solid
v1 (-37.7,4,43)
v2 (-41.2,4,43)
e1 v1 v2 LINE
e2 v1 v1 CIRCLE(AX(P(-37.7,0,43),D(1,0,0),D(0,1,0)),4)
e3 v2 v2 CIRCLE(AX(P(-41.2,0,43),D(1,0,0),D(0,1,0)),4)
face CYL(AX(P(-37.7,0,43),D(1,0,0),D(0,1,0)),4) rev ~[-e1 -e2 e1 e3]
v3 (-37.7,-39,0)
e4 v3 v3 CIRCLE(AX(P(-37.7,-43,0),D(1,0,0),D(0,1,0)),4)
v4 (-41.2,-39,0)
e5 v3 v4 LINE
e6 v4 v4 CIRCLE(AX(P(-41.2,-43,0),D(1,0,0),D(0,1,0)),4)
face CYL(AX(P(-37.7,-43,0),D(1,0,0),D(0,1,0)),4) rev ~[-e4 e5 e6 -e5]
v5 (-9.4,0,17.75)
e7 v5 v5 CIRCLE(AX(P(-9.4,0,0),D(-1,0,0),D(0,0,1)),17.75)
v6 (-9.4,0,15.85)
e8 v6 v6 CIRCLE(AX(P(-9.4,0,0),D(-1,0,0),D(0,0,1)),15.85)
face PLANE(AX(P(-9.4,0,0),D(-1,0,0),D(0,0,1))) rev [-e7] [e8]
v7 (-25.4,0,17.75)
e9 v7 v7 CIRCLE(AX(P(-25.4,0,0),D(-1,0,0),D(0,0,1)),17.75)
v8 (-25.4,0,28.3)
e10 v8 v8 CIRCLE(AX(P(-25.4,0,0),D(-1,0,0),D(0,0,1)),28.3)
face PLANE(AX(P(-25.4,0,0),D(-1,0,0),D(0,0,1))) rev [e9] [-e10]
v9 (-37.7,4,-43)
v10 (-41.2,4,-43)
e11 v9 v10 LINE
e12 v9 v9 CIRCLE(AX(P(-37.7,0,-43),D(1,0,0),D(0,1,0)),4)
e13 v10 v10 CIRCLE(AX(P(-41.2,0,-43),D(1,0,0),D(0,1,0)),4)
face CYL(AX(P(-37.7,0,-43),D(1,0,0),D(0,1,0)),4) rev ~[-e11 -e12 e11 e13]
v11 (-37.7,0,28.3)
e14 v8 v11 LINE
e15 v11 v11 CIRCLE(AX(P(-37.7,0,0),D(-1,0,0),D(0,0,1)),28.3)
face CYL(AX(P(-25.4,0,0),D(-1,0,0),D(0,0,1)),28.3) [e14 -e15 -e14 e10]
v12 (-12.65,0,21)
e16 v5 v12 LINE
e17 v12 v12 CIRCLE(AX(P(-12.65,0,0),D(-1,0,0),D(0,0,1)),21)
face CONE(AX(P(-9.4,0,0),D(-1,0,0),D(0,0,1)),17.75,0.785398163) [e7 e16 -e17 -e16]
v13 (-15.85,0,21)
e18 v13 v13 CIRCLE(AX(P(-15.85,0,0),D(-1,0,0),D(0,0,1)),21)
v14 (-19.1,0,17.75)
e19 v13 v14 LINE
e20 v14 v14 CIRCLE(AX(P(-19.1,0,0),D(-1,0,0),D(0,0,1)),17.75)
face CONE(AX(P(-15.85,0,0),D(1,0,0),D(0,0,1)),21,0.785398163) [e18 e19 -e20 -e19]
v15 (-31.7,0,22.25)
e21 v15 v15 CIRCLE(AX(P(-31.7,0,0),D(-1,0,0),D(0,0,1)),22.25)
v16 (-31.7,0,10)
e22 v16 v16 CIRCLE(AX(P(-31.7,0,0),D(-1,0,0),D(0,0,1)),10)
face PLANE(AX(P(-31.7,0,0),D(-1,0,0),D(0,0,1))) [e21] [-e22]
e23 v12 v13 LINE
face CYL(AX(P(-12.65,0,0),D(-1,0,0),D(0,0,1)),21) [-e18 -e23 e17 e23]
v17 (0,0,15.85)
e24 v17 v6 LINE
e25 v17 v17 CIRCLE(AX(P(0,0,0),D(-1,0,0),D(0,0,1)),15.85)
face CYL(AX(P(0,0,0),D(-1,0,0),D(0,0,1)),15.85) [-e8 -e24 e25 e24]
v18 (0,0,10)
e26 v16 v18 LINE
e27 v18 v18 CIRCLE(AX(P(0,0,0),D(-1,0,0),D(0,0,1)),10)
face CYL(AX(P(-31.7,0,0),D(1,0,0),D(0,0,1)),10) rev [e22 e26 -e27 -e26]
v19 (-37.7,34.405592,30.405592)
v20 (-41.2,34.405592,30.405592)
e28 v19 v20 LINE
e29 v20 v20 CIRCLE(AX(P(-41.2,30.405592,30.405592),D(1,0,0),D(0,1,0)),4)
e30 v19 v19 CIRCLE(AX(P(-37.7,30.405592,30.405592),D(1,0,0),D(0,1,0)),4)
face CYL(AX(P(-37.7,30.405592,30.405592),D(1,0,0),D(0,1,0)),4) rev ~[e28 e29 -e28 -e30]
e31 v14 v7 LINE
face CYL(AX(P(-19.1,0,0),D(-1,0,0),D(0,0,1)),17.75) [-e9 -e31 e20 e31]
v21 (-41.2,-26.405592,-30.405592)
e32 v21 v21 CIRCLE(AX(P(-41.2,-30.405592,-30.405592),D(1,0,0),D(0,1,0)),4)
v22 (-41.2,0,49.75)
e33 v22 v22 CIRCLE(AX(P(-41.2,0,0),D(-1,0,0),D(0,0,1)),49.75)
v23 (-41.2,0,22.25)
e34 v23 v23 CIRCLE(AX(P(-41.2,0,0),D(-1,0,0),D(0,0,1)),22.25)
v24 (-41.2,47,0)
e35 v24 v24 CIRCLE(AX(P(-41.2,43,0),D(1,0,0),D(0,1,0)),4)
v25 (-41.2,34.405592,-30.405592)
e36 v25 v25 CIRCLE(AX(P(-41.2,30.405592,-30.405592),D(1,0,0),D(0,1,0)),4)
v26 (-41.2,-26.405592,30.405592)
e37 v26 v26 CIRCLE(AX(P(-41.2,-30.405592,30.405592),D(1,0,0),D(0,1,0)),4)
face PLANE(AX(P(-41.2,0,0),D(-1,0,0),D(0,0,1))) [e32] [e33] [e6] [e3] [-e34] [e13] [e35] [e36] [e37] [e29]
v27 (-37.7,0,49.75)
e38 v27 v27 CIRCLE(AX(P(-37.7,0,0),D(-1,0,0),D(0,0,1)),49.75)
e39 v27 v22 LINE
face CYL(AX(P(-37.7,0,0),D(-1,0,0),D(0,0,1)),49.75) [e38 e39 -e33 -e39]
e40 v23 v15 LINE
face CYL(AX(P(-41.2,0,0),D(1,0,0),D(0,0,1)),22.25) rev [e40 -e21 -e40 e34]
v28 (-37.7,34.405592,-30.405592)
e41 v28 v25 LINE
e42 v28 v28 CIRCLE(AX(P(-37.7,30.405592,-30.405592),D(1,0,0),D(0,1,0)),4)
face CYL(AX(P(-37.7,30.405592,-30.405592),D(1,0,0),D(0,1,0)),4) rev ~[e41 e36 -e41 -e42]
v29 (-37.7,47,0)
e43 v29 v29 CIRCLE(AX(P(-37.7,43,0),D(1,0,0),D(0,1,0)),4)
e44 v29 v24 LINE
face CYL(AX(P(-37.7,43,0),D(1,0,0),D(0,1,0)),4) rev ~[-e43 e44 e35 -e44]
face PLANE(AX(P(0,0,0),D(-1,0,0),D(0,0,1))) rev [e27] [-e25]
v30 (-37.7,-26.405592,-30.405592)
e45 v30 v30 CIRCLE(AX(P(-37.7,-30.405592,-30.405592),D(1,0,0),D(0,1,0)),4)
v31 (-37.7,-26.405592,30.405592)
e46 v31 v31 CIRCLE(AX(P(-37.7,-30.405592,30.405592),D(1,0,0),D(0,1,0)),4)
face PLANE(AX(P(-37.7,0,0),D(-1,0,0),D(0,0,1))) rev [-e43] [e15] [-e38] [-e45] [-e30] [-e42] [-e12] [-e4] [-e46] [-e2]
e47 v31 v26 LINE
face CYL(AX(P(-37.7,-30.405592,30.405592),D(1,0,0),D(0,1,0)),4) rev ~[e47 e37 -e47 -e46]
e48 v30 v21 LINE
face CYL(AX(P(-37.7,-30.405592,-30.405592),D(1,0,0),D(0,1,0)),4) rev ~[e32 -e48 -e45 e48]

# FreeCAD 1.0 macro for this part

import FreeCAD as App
import Part
import Sketcher
from FreeCAD import Vector
Q = App.Units.Quantity

doc = App.newDocument("Part")
body = doc.addObject("PartDesign::Body", "Body")

# Sketch on XZ plane
sketch1 = body.newObject("Sketcher::SketchObject", "Sketch")
sketch1.AttachmentSupport = (doc.getObject("XZ_Plane"), [""])
sketch1.MapMode = "FlatFace"
sketch1.addGeometry(Part.LineSegment(Vector(-37.7, 28.3, 0), Vector(-37.7, 49.8, 0)), False)
sketch1.addGeometry(Part.LineSegment(Vector(-37.7, 49.8, 0), Vector(-41.2, 49.8, 0)), False)
sketch1.addGeometry(Part.LineSegment(Vector(-41.2, 49.8, 0), Vector(-41.2, 22.2, 0)), False)
sketch1.addGeometry(Part.LineSegment(Vector(-41.2, 22.2, 0), Vector(-31.7, 22.2, 0)), False)
sketch1.addGeometry(Part.LineSegment(Vector(-31.7, 22.2, 0), Vector(-31.7, 10, 0)), False)
sketch1.addGeometry(Part.LineSegment(Vector(-31.7, 10, 0), Vector(0, 10, 0)), False)
sketch1.addGeometry(Part.LineSegment(Vector(0, 10, 0), Vector(0, 15.8, 0)), False)
sketch1.addGeometry(Part.LineSegment(Vector(0, 15.8, 0), Vector(-9.4, 15.8, 0)), False)
sketch1.addGeometry(Part.LineSegment(Vector(-9.4, 15.8, 0), Vector(-9.4, 17.8, 0)), False)
sketch1.addGeometry(Part.LineSegment(Vector(-9.4, 17.8, 0), Vector(-12.7, 21, 0)), False)
sketch1.addGeometry(Part.LineSegment(Vector(-12.7, 21, 0), Vector(-15.8, 21, 0)), False)
sketch1.addGeometry(Part.LineSegment(Vector(-15.8, 21, 0), Vector(-19.1, 17.8, 0)), False)
sketch1.addGeometry(Part.LineSegment(Vector(-19.1, 17.8, 0), Vector(-25.4, 17.8, 0)), False)
sketch1.addGeometry(Part.LineSegment(Vector(-25.4, 17.8, 0), Vector(-25.4, 28.3, 0)), False)
sketch1.addGeometry(Part.LineSegment(Vector(-25.4, 28.3, 0), Vector(-37.7, 28.3, 0)), False)
sketch1.addConstraint(Sketcher.Constraint("Coincident", 0, 2, 1, 1))
sketch1.addConstraint(Sketcher.Constraint("Coincident", 1, 2, 2, 1))
sketch1.addConstraint(Sketcher.Constraint("Coincident", 2, 2, 3, 1))
sketch1.addConstraint(Sketcher.Constraint("Coincident", 3, 2, 4, 1))
sketch1.addConstraint(Sketcher.Constraint("Coincident", 4, 2, 5, 1))
sketch1.addConstraint(Sketcher.Constraint("Coincident", 5, 2, 6, 1))
sketch1.addConstraint(Sketcher.Constraint("Coincident", 6, 2, 7, 1))
sketch1.addConstraint(Sketcher.Constraint("Coincident", 7, 2, 8, 1))
sketch1.addConstraint(Sketcher.Constraint("Coincident", 8, 2, 9, 1))
sketch1.addConstraint(Sketcher.Constraint("Coincident", 9, 2, 10, 1))
sketch1.addConstraint(Sketcher.Constraint("Coincident", 10, 2, 11, 1))
sketch1.addConstraint(Sketcher.Constraint("Coincident", 11, 2, 12, 1))
sketch1.addConstraint(Sketcher.Constraint("Coincident", 12, 2, 13, 1))
sketch1.addConstraint(Sketcher.Constraint("Coincident", 13, 2, 14, 1))
sketch1.addConstraint(Sketcher.Constraint("Coincident", 14, 2, 0, 1))
sketch1.addConstraint(Sketcher.Constraint("Vertical", 0))
sketch1.addConstraint(Sketcher.Constraint("Horizontal", 1))
sketch1.addConstraint(Sketcher.Constraint("Vertical", 2))
sketch1.addConstraint(Sketcher.Constraint("Horizontal", 3))
sketch1.addConstraint(Sketcher.Constraint("Vertical", 4))
sketch1.addConstraint(Sketcher.Constraint("Horizontal", 5))
sketch1.addConstraint(Sketcher.Constraint("Vertical", 6))
sketch1.addConstraint(Sketcher.Constraint("Horizontal", 7))
sketch1.addConstraint(Sketcher.Constraint("Vertical", 8))
sketch1.addConstraint(Sketcher.Constraint("Horizontal", 10))
sketch1.addConstraint(Sketcher.Constraint("Horizontal", 12))
sketch1.addConstraint(Sketcher.Constraint("Vertical", 13))
sketch1.addConstraint(Sketcher.Constraint("Horizontal", 14))
sketch1.addConstraint(Sketcher.Constraint("PointOnObject", 5, 2, -2))
sketch1.addConstraint(Sketcher.Constraint("Perpendicular", 9, 11))
sketch1.addConstraint(Sketcher.Constraint("Horizontal", 8, 2, 11, 2))
sketch1.addConstraint(Sketcher.Constraint("Equal", 9, 11))
sketch1.addConstraint(Sketcher.Constraint("DistanceX", 1, 2, 1, 1, Q("3.5 mm")))
sketch1.addConstraint(Sketcher.Constraint("DistanceX", 3, 1, 3, 2, Q("9.5 mm")))
sketch1.addConstraint(Sketcher.Constraint("DistanceX", 5, 1, 5, 2, Q("31.7 mm")))
sketch1.addConstraint(Sketcher.Constraint("DistanceX", 7, 2, 7, 1, Q("9.4 mm")))
sketch1.addConstraint(Sketcher.Constraint("DistanceX", 10, 2, 10, 1, Q("3.2 mm")))
sketch1.addConstraint(Sketcher.Constraint("DistanceX", 12, 2, 12, 1, Q("6.3 mm")))
sketch1.addConstraint(Sketcher.Constraint("DistanceX", 14, 2, 14, 1, Q("12.3 mm")))
sketch1.addConstraint(Sketcher.Constraint("DistanceY", 2, 2, 2, 1, Q("27.5 mm")))
sketch1.addConstraint(Sketcher.Constraint("DistanceY", 8, 1, 8, 2, Q("1.9 mm")))
sketch1.addConstraint(Sketcher.Constraint("DistanceY", -1, 1, 4, 2, Q("10 mm")))
sketch1.addConstraint(Sketcher.Constraint("DistanceY", -1, 1, 9, 2, Q("21 mm")))
sketch1.addConstraint(Sketcher.Constraint("DistanceY", 0, 1, 0, 2, Q("21.45 mm")))
sketch1.addConstraint(Sketcher.Constraint("DistanceY", 4, 2, 4, 1, Q("12.25 mm")))
revolution = body.newObject("PartDesign::Revolution", "Revolution")
revolution.Profile = sketch1
revolution.ReferenceAxis = (sketch1, ["H_Axis"])
revolution.Angle = 360

# Sketch on YZ plane
sketch2 = body.newObject("Sketcher::SketchObject", "Sketch001")
sketch2.AttachmentSupport = (doc.getObject("YZ_Plane"), [""])
sketch2.MapMode = "FlatFace"
sketch2.AttachmentOffset = App.Placement(Vector(0, 0, -37.7), App.Rotation())
sketch2.addGeometry(Part.Circle(Vector(0, 43, 0), Vector(0, 0, 1), 4), False)
sketch2.addGeometry(Part.Circle(Vector(-30.4, 30.4, 0), Vector(0, 0, 1), 4), False)
sketch2.addGeometry(Part.Circle(Vector(-43, 0, 0), Vector(0, 0, 1), 4), False)
sketch2.addGeometry(Part.Circle(Vector(-30.4, -30.4, 0), Vector(0, 0, 1), 4), False)
sketch2.addGeometry(Part.Circle(Vector(0, -43, 0), Vector(0, 0, 1), 4), False)
sketch2.addGeometry(Part.Circle(Vector(30.4, -30.4, 0), Vector(0, 0, 1), 4), False)
sketch2.addGeometry(Part.Circle(Vector(43, 0, 0), Vector(0, 0, 1), 4), False)
sketch2.addGeometry(Part.Circle(Vector(30.4, 30.4, 0), Vector(0, 0, 1), 4), False)
sketch2.addConstraint(Sketcher.Constraint("Equal", 0, 1))
sketch2.addConstraint(Sketcher.Constraint("Equal", 1, 2))
sketch2.addConstraint(Sketcher.Constraint("Equal", 2, 3))
sketch2.addConstraint(Sketcher.Constraint("Equal", 3, 4))
sketch2.addConstraint(Sketcher.Constraint("Equal", 4, 5))
sketch2.addConstraint(Sketcher.Constraint("Equal", 5, 6))
sketch2.addConstraint(Sketcher.Constraint("Equal", 6, 7))
sketch2.addConstraint(Sketcher.Constraint("Symmetric", 0, 3, 4, 3, -1, 1))
sketch2.addConstraint(Sketcher.Constraint("Symmetric", 1, 3, 5, 3, -1, 1))
sketch2.addConstraint(Sketcher.Constraint("Symmetric", 2, 3, 6, 3, -1, 1))
sketch2.addConstraint(Sketcher.Constraint("Symmetric", 3, 3, 7, 3, -1, 1))
sketch2.addConstraint(Sketcher.Constraint("Symmetric", 3, 3, 5, 3, -2))
sketch2.addConstraint(Sketcher.Constraint("PointOnObject", 0, 3, -2))
sketch2.addConstraint(Sketcher.Constraint("PointOnObject", 2, 3, -1))
sketch2.addConstraint(Sketcher.Constraint("Diameter", 0, Q("8 mm")))
sketch2.addConstraint(Sketcher.Constraint("DistanceY", -1, 1, 0, 3, Q("43 mm")))
sketch2.addConstraint(Sketcher.Constraint("DistanceX", 2, 3, -1, 1, Q("43 mm")))
sketch2.addConstraint(Sketcher.Constraint("DistanceX", 1, 3, -1, 1, Q("30.405592 mm")))
sketch2.addConstraint(Sketcher.Constraint("DistanceY", -1, 1, 1, 3, Q("30.405592 mm")))
pocket1 = body.newObject("PartDesign::Pocket", "Pocket")
pocket1.Profile = sketch2
pocket1.Type = "ThroughAll"

doc.recompute()
